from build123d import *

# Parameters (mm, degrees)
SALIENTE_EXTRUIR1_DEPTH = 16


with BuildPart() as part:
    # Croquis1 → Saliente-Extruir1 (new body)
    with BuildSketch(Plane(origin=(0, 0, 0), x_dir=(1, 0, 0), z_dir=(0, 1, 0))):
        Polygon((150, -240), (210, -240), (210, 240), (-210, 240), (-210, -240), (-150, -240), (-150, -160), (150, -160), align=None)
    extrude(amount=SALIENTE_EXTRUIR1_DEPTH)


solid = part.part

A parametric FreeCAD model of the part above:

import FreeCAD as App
import Part
import Sketcher


def add_polygon(sketch, points):
    """Adds a closed chain of lines whose ends are joined by coincident constraints."""
    first, n = sketch.GeometryCount, len(points)
    for a, b in zip(points, points[1:] + points[:1]):
        sketch.addGeometry(Part.LineSegment(App.Vector(*a, 0), App.Vector(*b, 0)), False)
    for i in range(n):
        sketch.addConstraint(Sketcher.Constraint("Coincident", first + i, 2, first + (i + 1) % n, 1))

doc = App.newDocument("Part")
params = doc.addObject("Spreadsheet::Sheet", "Params")
for row, (alias, value) in enumerate([
    ("sketch1_width", "60 mm"),
    ("sketch1_width2", "420 mm"),
    ("sketch1_height", "480 mm"),
    ("sketch1_height2", "80 mm"),
    ("pad1_length", "16 mm"),
], start=1):
    params.set(f"A{row}", alias)
    params.set(f"B{row}", "=" + value)
    params.setAlias(f"B{row}", alias)

body = doc.addObject("PartDesign::Body", "Body")

# Sketch on XZ plane
sketch1 = body.newObject("Sketcher::SketchObject", "Sketch")
sketch1.AttachmentSupport = (doc.getObject("XZ_Plane"), [""])
sketch1.MapMode = "FlatFace"
add_polygon(sketch1, [(150, 240), (210, 240), (210, -240), (-210, -240), (-210, 240), (-150, 240), (-150, 160), (150, 160)])  # lines 0-7
sketch1.addConstraint(Sketcher.Constraint("Horizontal", 0))
sketch1.addConstraint(Sketcher.Constraint("Vertical", 1))
sketch1.addConstraint(Sketcher.Constraint("Horizontal", 2))
sketch1.addConstraint(Sketcher.Constraint("Vertical", 3))
sketch1.addConstraint(Sketcher.Constraint("Horizontal", 4))
sketch1.addConstraint(Sketcher.Constraint("Vertical", 5))
sketch1.addConstraint(Sketcher.Constraint("Horizontal", 6))
sketch1.addConstraint(Sketcher.Constraint("Vertical", 7))
sketch1.addConstraint(Sketcher.Constraint("Symmetric", 0, 2, 2, 2, -1, 1))
sketch1.addConstraint(Sketcher.Constraint("Symmetric", 4, 2, 7, 2, -2))
sketch1.addConstraint(Sketcher.Constraint("DistanceX", 0, 1, 0, 2, 60.0))
sketch1.addConstraint(Sketcher.Constraint("DistanceX", 2, 2, 2, 1, 420.0))
sketch1.addConstraint(Sketcher.Constraint("DistanceY", 1, 2, 1, 1, 480.0))
sketch1.addConstraint(Sketcher.Constraint("DistanceY", 5, 2, 5, 1, 80.0))
sketch1.setExpression("Constraints[18]", "Params.sketch1_width")
sketch1.setExpression("Constraints[19]", "Params.sketch1_width2")
sketch1.setExpression("Constraints[20]", "Params.sketch1_height")
sketch1.setExpression("Constraints[21]", "Params.sketch1_height2")
pad1 = body.newObject("PartDesign::Pad", "Pad")
pad1.Profile = sketch1
pad1.setExpression("Length", "Params.pad1_length")
pad1.Reversed = True

doc.recompute()
